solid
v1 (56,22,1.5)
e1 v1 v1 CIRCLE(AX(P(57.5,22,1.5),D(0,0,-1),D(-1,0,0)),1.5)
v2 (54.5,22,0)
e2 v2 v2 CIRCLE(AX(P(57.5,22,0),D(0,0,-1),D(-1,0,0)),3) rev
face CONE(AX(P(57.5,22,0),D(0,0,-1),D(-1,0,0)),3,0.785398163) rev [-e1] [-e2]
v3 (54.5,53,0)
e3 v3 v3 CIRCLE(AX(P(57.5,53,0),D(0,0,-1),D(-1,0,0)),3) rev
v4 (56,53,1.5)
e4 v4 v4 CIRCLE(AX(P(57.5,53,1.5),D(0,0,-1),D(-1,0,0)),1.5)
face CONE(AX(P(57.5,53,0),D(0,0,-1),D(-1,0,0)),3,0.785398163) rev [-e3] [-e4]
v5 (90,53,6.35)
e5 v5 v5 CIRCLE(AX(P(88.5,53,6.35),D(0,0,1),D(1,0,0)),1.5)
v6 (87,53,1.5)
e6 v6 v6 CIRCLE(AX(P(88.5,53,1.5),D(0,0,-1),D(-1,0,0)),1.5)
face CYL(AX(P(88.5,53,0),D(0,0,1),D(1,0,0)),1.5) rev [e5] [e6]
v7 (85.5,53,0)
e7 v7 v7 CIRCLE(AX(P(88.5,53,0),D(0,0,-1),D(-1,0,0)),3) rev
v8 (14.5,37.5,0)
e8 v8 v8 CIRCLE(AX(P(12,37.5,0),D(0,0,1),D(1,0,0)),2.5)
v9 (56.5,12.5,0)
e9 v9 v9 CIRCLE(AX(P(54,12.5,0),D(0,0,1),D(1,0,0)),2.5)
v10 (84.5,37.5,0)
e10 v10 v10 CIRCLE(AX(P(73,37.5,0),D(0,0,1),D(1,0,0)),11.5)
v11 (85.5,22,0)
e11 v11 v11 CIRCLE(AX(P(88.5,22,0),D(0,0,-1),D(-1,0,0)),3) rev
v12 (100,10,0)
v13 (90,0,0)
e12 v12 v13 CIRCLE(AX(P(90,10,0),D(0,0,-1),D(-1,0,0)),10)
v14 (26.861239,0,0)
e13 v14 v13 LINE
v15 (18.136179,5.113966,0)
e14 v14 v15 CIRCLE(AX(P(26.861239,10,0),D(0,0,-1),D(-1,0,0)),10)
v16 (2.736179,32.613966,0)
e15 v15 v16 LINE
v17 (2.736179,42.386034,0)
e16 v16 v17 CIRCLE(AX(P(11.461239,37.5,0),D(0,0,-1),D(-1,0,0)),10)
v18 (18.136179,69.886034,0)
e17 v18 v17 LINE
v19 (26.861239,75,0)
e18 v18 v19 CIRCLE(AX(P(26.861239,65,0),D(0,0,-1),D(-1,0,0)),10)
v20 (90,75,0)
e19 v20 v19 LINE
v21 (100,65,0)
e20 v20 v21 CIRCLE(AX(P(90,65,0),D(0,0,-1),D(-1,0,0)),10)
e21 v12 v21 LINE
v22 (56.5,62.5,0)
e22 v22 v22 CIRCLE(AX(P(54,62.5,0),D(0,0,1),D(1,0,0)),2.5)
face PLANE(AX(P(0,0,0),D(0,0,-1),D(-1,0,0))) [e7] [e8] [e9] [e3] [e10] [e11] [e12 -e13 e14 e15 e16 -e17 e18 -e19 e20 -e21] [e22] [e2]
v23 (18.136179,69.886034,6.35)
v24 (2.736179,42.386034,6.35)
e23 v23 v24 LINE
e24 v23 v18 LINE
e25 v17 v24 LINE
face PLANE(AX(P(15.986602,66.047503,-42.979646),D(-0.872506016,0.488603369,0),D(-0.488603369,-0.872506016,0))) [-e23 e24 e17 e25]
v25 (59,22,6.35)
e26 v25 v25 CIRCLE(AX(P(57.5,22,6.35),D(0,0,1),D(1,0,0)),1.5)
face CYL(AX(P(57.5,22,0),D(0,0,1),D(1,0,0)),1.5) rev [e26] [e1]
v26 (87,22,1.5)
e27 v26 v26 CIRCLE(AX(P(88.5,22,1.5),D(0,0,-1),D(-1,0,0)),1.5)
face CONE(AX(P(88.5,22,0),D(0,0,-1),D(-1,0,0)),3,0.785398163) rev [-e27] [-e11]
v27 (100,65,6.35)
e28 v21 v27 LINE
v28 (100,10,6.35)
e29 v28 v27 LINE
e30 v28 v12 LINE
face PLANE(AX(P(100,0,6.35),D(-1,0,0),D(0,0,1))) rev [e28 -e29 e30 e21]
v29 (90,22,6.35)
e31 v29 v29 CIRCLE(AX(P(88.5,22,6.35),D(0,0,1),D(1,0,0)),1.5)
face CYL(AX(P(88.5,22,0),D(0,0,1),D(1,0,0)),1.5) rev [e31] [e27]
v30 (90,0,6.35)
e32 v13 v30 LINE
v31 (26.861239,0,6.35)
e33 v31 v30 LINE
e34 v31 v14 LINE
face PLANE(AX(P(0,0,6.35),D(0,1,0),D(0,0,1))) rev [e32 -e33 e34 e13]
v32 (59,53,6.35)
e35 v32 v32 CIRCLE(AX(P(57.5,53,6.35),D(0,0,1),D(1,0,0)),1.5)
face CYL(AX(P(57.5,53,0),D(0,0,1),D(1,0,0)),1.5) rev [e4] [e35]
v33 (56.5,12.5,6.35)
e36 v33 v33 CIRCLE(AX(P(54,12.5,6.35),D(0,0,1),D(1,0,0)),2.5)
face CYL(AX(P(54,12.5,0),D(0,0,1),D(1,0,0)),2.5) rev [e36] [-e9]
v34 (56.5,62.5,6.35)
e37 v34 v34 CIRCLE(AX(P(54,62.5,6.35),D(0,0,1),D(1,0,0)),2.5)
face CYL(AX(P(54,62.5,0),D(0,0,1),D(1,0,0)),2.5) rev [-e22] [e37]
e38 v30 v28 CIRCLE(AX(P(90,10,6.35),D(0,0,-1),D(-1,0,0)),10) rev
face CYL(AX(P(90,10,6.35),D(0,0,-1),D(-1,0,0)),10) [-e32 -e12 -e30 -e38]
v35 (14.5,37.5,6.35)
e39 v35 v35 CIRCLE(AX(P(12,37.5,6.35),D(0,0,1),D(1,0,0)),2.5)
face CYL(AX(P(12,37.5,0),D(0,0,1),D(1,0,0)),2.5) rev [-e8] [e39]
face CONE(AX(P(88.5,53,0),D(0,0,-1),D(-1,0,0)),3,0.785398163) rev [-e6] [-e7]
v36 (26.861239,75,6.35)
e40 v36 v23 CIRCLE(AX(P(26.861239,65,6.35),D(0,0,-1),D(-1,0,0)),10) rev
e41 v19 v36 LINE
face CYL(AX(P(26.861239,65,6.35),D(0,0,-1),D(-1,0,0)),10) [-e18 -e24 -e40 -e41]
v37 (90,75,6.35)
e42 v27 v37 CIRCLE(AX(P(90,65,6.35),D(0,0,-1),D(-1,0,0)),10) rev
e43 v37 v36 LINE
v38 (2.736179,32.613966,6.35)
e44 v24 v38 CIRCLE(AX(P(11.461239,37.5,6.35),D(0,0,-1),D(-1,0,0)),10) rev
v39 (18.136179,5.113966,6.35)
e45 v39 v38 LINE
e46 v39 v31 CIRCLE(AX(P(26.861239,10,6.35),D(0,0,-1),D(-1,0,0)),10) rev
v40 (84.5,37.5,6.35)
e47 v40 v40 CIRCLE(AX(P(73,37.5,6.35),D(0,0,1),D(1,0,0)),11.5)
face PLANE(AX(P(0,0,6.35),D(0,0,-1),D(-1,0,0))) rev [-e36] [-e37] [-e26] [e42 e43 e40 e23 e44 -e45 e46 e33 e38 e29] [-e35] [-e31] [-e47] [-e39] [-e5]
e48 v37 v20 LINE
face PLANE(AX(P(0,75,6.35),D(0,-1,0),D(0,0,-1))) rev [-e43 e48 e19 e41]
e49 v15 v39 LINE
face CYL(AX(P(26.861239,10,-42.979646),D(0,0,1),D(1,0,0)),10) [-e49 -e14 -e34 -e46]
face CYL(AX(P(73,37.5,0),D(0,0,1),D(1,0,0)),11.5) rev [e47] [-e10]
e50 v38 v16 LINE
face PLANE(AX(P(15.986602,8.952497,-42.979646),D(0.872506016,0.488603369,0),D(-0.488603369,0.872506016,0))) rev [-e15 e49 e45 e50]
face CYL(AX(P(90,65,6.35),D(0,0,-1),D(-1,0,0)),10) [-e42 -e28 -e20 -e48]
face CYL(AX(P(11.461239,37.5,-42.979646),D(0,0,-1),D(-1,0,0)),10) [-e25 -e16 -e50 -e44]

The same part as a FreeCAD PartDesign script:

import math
import FreeCAD as App
import Part
import Sketcher
from FreeCAD import Vector
Q = App.Units.Quantity


def edges_at(feature, points):
    """Names of the edges that pass closest to the given points."""
    edges = feature.Shape.Edges
    near = lambda p: min(range(len(edges)), key=lambda i: edges[i].distToShape(Part.Vertex(*p))[0])
    return sorted({f"Edge{near(p) + 1}" for p in points})


def add_polygon(sketch, points):
    """Adds a closed chain of lines whose ends are joined by coincident constraints."""
    first, n = sketch.GeometryCount, len(points)
    for a, b in zip(points, points[1:] + points[:1]):
        sketch.addGeometry(Part.LineSegment(App.Vector(*a, 0), App.Vector(*b, 0)), False)
    for i in range(n):
        sketch.addConstraint(Sketcher.Constraint("Coincident", first + i, 2, first + (i + 1) % n, 1))

doc = App.newDocument("Part")
body = doc.addObject("PartDesign::Body", "Body")

# Sketch on XY plane
sketch1 = doc.addObject("Sketcher::SketchObject", "Sketch")
body.addObject(sketch1)
sketch1.AttachmentSupport = (doc.XY_Plane, [""])
sketch1.MapMode = "FlatFace"
add_polygon(sketch1, [(0, 75), (0, 0), (100, 0), (100, 75)])  # lines 0-3
sketch1.addConstraint(Sketcher.Constraint("Vertical", 0))
sketch1.addConstraint(Sketcher.Constraint("Horizontal", 1))
sketch1.addConstraint(Sketcher.Constraint("Vertical", 2))
sketch1.addConstraint(Sketcher.Constraint("Horizontal", 3))
sketch1.addConstraint(Sketcher.Constraint("Coincident", 0, 2, -1, 1))
sketch1.addConstraint(Sketcher.Constraint("DistanceX", 1, 1, 1, 2, Q("100 mm")))
sketch1.addConstraint(Sketcher.Constraint("DistanceY", 0, 2, 0, 1, Q("75 mm")))
pad1 = doc.addObject("PartDesign::Pad", "Pad")
body.addObject(pad1)
pad1.Profile = sketch1
pad1.Length = 6.35

# Sketch on XY plane
sketch2 = doc.addObject("Sketcher::SketchObject", "Sketch001")
body.addObject(sketch2)
sketch2.AttachmentSupport = (doc.XY_Plane, [""])
sketch2.MapMode = "FlatFace"
sketch2.AttachmentOffset = App.Placement(Vector(0, 0, 6.35), App.Rotation())
sketch2.addGeometry(Part.Circle(Vector(54, 62.5, 0), Vector(0, 0, 1), 2.5), False)
sketch2.addGeometry(Part.Circle(Vector(12, 37.5, 0), Vector(0, 0, 1), 2.5), False)
sketch2.addGeometry(Part.Circle(Vector(54, 12.5, 0), Vector(0, 0, 1), 2.5), False)
sketch2.addConstraint(Sketcher.Constraint("Equal", 0, 1))
sketch2.addConstraint(Sketcher.Constraint("Equal", 1, 2))
sketch2.addConstraint(Sketcher.Constraint("Vertical", 0, 3, 2, 3))
sketch2.addConstraint(Sketcher.Constraint("Diameter", 0, Q("5 mm")))
sketch2.addConstraint(Sketcher.Constraint("DistanceX", -1, 1, 0, 3, Q("54 mm")))
sketch2.addConstraint(Sketcher.Constraint("DistanceX", -1, 1, 1, 3, Q("12 mm")))
sketch2.addConstraint(Sketcher.Constraint("DistanceY", 1, 3, 0, 3, Q("25 mm")))
sketch2.addConstraint(Sketcher.Constraint("DistanceY", 2, 3, 1, 3, Q("25 mm")))
sketch2.addConstraint(Sketcher.Constraint("DistanceY", -1, 1, 0, 3, Q("62.5 mm")))
pocket1 = doc.addObject("PartDesign::Pocket", "Pocket")
body.addObject(pocket1)
pocket1.Profile = sketch2
pocket1.Type = "ThroughAll"

# Sketch on XY plane
sketch3 = doc.addObject("Sketcher::SketchObject", "Sketch002")
body.addObject(sketch3)
sketch3.AttachmentSupport = (doc.XY_Plane, [""])
sketch3.MapMode = "FlatFace"
sketch3.AttachmentOffset = App.Placement(Vector(0, 0, 6.35), App.Rotation())
sketch3.addGeometry(Part.Circle(Vector(57.5, 53, 0), Vector(0, 0, 1), 1.5), False)
sketch3.addGeometry(Part.Circle(Vector(88.5, 53, 0), Vector(0, 0, 1), 1.5), False)
sketch3.addGeometry(Part.Circle(Vector(88.5, 22, 0), Vector(0, 0, 1), 1.5), False)
sketch3.addGeometry(Part.Circle(Vector(57.5, 22, 0), Vector(0, 0, 1), 1.5), False)
sketch3.addGeometry(Part.Circle(Vector(73, 37.5, 0), Vector(0, 0, 1), 11.5), False)
sketch3.addConstraint(Sketcher.Constraint("Equal", 0, 1))
sketch3.addConstraint(Sketcher.Constraint("Equal", 1, 2))
sketch3.addConstraint(Sketcher.Constraint("Equal", 2, 3))
sketch3.addConstraint(Sketcher.Constraint("Horizontal", 0, 3, 1, 3))
sketch3.addConstraint(Sketcher.Constraint("Horizontal", 2, 3, 3, 3))
sketch3.addConstraint(Sketcher.Constraint("Vertical", 1, 3, 2, 3))
sketch3.addConstraint(Sketcher.Constraint("Vertical", 0, 3, 3, 3))
sketch3.addConstraint(Sketcher.Constraint("Diameter", 0, Q("3 mm")))
sketch3.addConstraint(Sketcher.Constraint("Diameter", 4, Q("23 mm")))
sketch3.addConstraint(Sketcher.Constraint("DistanceY", -1, 1, 0, 3, Q("53 mm")))
sketch3.addConstraint(Sketcher.Constraint("DistanceY", -1, 1, 2, 3, Q("22 mm")))
sketch3.addConstraint(Sketcher.Constraint("DistanceX", -1, 1, 4, 3, Q("73 mm")))
sketch3.addConstraint(Sketcher.Constraint("DistanceX", 0, 3, 1, 3, Q("31 mm")))
sketch3.addConstraint(Sketcher.Constraint("DistanceX", -1, 1, 0, 3, Q("57.5 mm")))
sketch3.addConstraint(Sketcher.Constraint("DistanceY", -1, 1, 4, 3, Q("37.5 mm")))
pocket2 = doc.addObject("PartDesign::Pocket", "Pocket001")
body.addObject(pocket2)
pocket2.Profile = sketch3
pocket2.Type = "ThroughAll"
doc.recompute()

chamfer = doc.addObject("PartDesign::Chamfer", "Chamfer")
body.addObject(chamfer)
chamfer.Base = (pocket2, edges_at(pocket2, [
    (56, 53, 0),
    (87, 22, 0),
    (56, 22, 0),
    (87, 53, 0),
]))
chamfer.Size = 1.5
doc.recompute()

fillet = doc.addObject("PartDesign::Fillet", "Fillet")
body.addObject(fillet)
fillet.Base = (chamfer, edges_at(chamfer, [
    (0, 75, 3.175),
    (100, 75, 3.175),
    (100, 0, 3.175),
    (0, 0, 3.175),
]))
fillet.Radius = 10

# Sketch on XY plane
sketch4 = doc.addObject("Sketcher::SketchObject", "Sketch003")
body.addObject(sketch4)
sketch4.AttachmentSupport = (doc.XY_Plane, [""])
sketch4.MapMode = "FlatFace"
sketch4.AttachmentOffset = App.Placement(Vector(0, 0, 6.35), App.Rotation())
sketch4.addGeometry(Part.LineSegment(Vector(10, 0, 0), Vector(21, 0, 0)), False)
sketch4.addGeometry(Part.LineSegment(Vector(21, 0, 0), Vector(0, 38, 0)), False)
sketch4.addGeometry(Part.LineSegment(Vector(0, 38, 0), Vector(0, 10, 0)), False)
sketch4.addGeometry(Part.ArcOfCircle(Part.Circle(Vector(10, 10, 0), Vector(0, 0, 1), 10), math.radians(180), math.radians(270)), False)
sketch4.addConstraint(Sketcher.Constraint("Coincident", 0, 2, 1, 1))
sketch4.addConstraint(Sketcher.Constraint("Coincident", 1, 2, 2, 1))
sketch4.addConstraint(Sketcher.Constraint("Tangent", 2, 2, 3, 1))
sketch4.addConstraint(Sketcher.Constraint("Tangent", 3, 2, 0, 1))
sketch4.addConstraint(Sketcher.Constraint("Horizontal", 0))
sketch4.addConstraint(Sketcher.Constraint("Vertical", 2))
sketch4.addConstraint(Sketcher.Constraint("PointOnObject", 0, 2, -1))
sketch4.addConstraint(Sketcher.Constraint("PointOnObject", 1, 2, -2))
sketch4.addConstraint(Sketcher.Constraint("Radius", 3, Q("10 mm")))
sketch4.addConstraint(Sketcher.Constraint("DistanceX", 0, 1, 0, 2, Q("11 mm")))
sketch4.addConstraint(Sketcher.Constraint("DistanceY", 2, 2, 2, 1, Q("27.5 mm")))
pocket3 = doc.addObject("PartDesign::Pocket", "Pocket002")
body.addObject(pocket3)
pocket3.Profile = sketch4
pocket3.Length = 6.35
doc.recompute()

datumplane = doc.addObject("PartDesign::Plane", "DatumPlane")
body.addObject(datumplane)
datumplane.AttachmentSupport = (doc.XZ_Plane, [""])
datumplane.MapMode = "FlatFace"
datumplane.AttachmentOffset = App.Placement(Vector(0, 0, -37.5), App.Rotation())
mirrored = doc.addObject("PartDesign::Mirrored", "Mirrored")
body.addObject(mirrored)
mirrored.Originals = [pocket3]
mirrored.MirrorPlane = (datumplane, [""])
body.Tip = mirrored
doc.recompute()

fillet2 = doc.addObject("PartDesign::Fillet", "Fillet001")
body.addObject(fillet2)
fillet2.Base = (mirrored, edges_at(mirrored, [(21, 75, 3.175), (0, 37.5, 3.175), (21, 0, 3.175)]))
fillet2.Radius = 10

doc.recompute()
